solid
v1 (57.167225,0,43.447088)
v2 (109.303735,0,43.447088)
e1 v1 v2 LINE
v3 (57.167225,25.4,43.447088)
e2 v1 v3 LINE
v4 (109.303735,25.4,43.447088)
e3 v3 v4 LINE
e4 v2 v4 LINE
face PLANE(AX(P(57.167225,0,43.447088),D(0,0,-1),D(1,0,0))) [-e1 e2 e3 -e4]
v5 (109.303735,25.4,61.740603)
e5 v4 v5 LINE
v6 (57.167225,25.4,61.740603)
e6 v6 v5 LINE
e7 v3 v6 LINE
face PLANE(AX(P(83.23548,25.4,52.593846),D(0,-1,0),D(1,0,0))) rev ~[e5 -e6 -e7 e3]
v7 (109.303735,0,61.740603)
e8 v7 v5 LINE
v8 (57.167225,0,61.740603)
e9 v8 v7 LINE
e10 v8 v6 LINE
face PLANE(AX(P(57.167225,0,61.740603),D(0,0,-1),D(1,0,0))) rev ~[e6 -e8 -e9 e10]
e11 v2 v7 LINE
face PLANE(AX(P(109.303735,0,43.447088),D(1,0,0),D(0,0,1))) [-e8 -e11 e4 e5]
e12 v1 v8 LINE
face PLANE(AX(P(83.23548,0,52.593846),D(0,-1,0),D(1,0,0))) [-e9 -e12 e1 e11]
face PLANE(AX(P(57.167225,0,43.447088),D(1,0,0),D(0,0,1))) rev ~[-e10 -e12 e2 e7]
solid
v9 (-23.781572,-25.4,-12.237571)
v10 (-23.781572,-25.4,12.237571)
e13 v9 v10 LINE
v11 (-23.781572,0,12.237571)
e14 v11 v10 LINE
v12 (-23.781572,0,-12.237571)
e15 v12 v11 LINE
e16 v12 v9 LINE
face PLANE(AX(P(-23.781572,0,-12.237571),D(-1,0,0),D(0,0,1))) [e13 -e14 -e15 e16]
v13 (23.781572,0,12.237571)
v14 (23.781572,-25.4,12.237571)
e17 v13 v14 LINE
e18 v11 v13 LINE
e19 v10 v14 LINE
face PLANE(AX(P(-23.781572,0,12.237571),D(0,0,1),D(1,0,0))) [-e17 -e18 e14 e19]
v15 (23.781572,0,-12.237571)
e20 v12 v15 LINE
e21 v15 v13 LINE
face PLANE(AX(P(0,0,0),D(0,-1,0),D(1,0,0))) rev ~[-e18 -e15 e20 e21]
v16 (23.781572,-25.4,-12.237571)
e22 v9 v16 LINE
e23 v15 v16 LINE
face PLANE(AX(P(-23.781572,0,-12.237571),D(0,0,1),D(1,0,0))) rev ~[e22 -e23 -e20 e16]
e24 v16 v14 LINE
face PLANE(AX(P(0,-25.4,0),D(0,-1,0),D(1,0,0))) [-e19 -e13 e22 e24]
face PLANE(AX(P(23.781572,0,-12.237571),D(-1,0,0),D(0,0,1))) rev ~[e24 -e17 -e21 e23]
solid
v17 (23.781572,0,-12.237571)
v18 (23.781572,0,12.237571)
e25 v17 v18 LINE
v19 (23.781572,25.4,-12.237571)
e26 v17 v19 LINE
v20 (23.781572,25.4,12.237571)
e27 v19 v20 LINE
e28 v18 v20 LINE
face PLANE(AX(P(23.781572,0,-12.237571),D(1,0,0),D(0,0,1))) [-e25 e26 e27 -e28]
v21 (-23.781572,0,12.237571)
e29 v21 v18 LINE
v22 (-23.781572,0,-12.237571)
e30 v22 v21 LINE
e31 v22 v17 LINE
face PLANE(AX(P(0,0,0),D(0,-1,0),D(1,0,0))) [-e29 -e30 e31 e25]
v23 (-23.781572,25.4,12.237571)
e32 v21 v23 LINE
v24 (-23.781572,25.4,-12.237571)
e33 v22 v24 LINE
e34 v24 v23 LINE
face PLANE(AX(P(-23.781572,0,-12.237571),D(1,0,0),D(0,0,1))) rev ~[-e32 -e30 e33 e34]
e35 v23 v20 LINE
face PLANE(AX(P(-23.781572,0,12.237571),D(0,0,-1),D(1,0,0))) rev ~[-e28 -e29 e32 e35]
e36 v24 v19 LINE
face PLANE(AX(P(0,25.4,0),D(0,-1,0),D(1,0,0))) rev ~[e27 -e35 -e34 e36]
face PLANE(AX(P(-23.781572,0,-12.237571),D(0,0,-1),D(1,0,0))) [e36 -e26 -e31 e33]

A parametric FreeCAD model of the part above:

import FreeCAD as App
import Part
import Sketcher
from FreeCAD import Vector

doc = App.newDocument("Part")
params = doc.addObject("Spreadsheet::Sheet", "Params")
for row, (alias, value) in enumerate([
    ("pad1_length", "1 in"),
    ("pad2_length", "1 in"),
], start=1):
    params.set(f"A{row}", alias)
    params.set(f"B{row}", "=" + value)
    params.setAlias(f"B{row}", alias)

body = doc.addObject("PartDesign::Body", "Body")

# Sketch on XZ plane
sketch1 = body.newObject("Sketcher::SketchObject", "Sketch")
sketch1.AttachmentSupport = (doc.getObject("XZ_Plane"), [""])
sketch1.MapMode = "FlatFace"
sketch1.addGeometry([
    Part.LineSegment(Vector(-24, 12, 0), Vector(-24, -12, 0)),
    Part.LineSegment(Vector(-24, -12, 0), Vector(24, -12, 0)),
    Part.LineSegment(Vector(24, -12, 0), Vector(24, 12, 0)),
    Part.LineSegment(Vector(24, 12, 0), Vector(-24, 12, 0)),
], False)
sketch1.addConstraint([
    Sketcher.Constraint("Coincident", 0, 2, 1, 1),
    Sketcher.Constraint("Coincident", 1, 2, 2, 1),
    Sketcher.Constraint("Coincident", 2, 2, 3, 1),
    Sketcher.Constraint("Coincident", 3, 2, 0, 1),
    Sketcher.Constraint("Vertical", 0),
    Sketcher.Constraint("Horizontal", 1),
    Sketcher.Constraint("Vertical", 2),
    Sketcher.Constraint("Horizontal", 3),
    Sketcher.Constraint("Symmetric", 0, 2, 2, 2, -1, 1),
    Sketcher.Constraint("DistanceX", 1, 1, 1, 2, 47.563144),
    Sketcher.Constraint("DistanceY", 0, 2, 0, 1, 24.475142),
])
pad1 = body.newObject("PartDesign::Pad", "Pad")
pad1.Profile = sketch1
pad1.setExpression("Length", "Params.pad1_length")
body2 = doc.addObject("PartDesign::Body", "Body001")
body2.AllowCompound = True

# Sketch on XZ plane
sketch2 = body2.newObject("Sketcher::SketchObject", "Sketch001")
sketch2.AttachmentSupport = (doc.getObject("XZ_Plane001"), [""])
sketch2.MapMode = "FlatFace"
sketch2.addGeometry([
    Part.LineSegment(Vector(57, 62, 0), Vector(57, 43, 0)),  # 0
    Part.LineSegment(Vector(57, 43, 0), Vector(109, 43, 0)),  # 1
    Part.LineSegment(Vector(109, 43, 0), Vector(109, 62, 0)),  # 2
    Part.LineSegment(Vector(109, 62, 0), Vector(57, 62, 0)),  # 3
    Part.LineSegment(Vector(-24, 12, 0), Vector(-24, -12, 0)),  # 4
    Part.LineSegment(Vector(-24, -12, 0), Vector(24, -12, 0)),  # 5
    Part.LineSegment(Vector(24, -12, 0), Vector(24, 12, 0)),  # 6
    Part.LineSegment(Vector(24, 12, 0), Vector(-24, 12, 0)),  # 7
], False)
sketch2.addConstraint([
    Sketcher.Constraint("Coincident", 0, 2, 1, 1),
    Sketcher.Constraint("Coincident", 1, 2, 2, 1),
    Sketcher.Constraint("Coincident", 2, 2, 3, 1),
    Sketcher.Constraint("Coincident", 3, 2, 0, 1),
    Sketcher.Constraint("Coincident", 4, 2, 5, 1),
    Sketcher.Constraint("Coincident", 5, 2, 6, 1),
    Sketcher.Constraint("Coincident", 6, 2, 7, 1),
    Sketcher.Constraint("Coincident", 7, 2, 4, 1),
    Sketcher.Constraint("Vertical", 0),
    Sketcher.Constraint("Horizontal", 1),
    Sketcher.Constraint("Vertical", 2),
    Sketcher.Constraint("Horizontal", 3),
    Sketcher.Constraint("Vertical", 4),
    Sketcher.Constraint("Horizontal", 5),
    Sketcher.Constraint("Vertical", 6),
    Sketcher.Constraint("Horizontal", 7),
    Sketcher.Constraint("Symmetric", 4, 2, 6, 2, -1, 1),
    Sketcher.Constraint("DistanceX", 1, 1, 1, 2, 52.13651),
    Sketcher.Constraint("DistanceX", 5, 1, 5, 2, 47.563144),
    Sketcher.Constraint("DistanceY", 0, 2, 0, 1, 18.293515),
    Sketcher.Constraint("DistanceY", 4, 2, 4, 1, 24.475142),
    Sketcher.Constraint("DistanceY", -1, 1, 0, 2, 43.447088),
    Sketcher.Constraint("DistanceX", -1, 1, 0, 2, 57.167225),
])
pad2 = body2.newObject("PartDesign::Pad", "Pad001")
pad2.Profile = sketch2
pad2.setExpression("Length", "Params.pad2_length")
pad2.Reversed = True

doc.recompute()
